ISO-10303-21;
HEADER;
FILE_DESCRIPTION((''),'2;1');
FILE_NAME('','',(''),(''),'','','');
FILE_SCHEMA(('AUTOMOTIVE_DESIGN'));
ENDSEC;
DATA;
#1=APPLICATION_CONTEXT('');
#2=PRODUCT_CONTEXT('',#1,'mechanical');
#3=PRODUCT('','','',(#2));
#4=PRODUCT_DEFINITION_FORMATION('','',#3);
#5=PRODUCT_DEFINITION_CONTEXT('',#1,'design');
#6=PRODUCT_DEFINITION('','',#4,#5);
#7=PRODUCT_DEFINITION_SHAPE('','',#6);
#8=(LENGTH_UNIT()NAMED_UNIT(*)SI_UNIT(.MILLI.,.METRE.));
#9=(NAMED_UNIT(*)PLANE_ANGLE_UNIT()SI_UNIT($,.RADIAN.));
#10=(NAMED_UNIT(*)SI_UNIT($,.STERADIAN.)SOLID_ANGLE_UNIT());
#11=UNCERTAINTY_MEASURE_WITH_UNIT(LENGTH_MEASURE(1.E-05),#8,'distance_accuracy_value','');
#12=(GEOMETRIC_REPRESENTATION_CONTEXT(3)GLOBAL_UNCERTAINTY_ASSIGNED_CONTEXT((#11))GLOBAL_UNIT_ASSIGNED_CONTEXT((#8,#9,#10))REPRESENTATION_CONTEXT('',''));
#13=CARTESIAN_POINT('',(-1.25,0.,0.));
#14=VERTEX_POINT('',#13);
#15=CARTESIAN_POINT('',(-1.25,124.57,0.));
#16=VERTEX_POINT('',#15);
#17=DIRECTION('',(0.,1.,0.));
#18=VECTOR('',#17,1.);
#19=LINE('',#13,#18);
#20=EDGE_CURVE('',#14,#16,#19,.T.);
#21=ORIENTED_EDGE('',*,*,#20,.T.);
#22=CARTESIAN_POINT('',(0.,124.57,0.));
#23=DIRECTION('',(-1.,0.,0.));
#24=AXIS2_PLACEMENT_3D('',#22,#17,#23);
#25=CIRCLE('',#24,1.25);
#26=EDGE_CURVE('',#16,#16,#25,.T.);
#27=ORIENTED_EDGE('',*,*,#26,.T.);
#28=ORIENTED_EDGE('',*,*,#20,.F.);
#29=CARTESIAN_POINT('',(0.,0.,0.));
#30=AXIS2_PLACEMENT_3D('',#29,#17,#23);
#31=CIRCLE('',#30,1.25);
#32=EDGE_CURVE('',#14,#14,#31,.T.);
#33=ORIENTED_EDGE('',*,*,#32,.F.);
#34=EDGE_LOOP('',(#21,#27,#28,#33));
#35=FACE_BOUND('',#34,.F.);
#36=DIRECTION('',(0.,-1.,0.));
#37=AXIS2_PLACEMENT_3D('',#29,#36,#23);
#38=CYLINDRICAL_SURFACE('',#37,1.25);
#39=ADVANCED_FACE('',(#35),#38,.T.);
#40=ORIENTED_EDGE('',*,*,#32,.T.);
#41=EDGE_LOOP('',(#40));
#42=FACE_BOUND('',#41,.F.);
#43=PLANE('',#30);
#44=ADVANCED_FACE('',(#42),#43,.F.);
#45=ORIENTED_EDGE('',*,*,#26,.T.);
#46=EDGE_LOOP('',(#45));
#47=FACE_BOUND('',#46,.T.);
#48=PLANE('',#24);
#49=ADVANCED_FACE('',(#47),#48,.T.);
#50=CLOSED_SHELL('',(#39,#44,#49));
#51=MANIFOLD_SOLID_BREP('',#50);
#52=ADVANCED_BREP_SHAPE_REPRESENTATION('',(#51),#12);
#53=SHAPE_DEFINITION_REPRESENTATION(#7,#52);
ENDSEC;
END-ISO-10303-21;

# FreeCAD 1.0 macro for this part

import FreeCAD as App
import Part
import Sketcher

doc = App.newDocument("Part")
body = doc.addObject("PartDesign::Body", "Body")

sketch1 = body.newObject("Sketcher::SketchObject", "Sketch")
sketch1.AttachmentSupport = (doc.getObject("XZ_Plane"), [""])
sketch1.MapMode = "FlatFace"
sketch1.addGeometry(Part.Circle(App.Vector(0, 0, 0), App.Vector(0, 0, 1), 1.2), False)
sketch1.addConstraint([
    Sketcher.Constraint("Coincident", 0, 3, -1, 1),
    Sketcher.Constraint("Diameter", 0, 2.5),
])
pad1 = body.newObject("PartDesign::Pad", "Pad")
pad1.Profile = sketch1
pad1.Length = 124.57
pad1.Reversed = True

doc.recompute()
